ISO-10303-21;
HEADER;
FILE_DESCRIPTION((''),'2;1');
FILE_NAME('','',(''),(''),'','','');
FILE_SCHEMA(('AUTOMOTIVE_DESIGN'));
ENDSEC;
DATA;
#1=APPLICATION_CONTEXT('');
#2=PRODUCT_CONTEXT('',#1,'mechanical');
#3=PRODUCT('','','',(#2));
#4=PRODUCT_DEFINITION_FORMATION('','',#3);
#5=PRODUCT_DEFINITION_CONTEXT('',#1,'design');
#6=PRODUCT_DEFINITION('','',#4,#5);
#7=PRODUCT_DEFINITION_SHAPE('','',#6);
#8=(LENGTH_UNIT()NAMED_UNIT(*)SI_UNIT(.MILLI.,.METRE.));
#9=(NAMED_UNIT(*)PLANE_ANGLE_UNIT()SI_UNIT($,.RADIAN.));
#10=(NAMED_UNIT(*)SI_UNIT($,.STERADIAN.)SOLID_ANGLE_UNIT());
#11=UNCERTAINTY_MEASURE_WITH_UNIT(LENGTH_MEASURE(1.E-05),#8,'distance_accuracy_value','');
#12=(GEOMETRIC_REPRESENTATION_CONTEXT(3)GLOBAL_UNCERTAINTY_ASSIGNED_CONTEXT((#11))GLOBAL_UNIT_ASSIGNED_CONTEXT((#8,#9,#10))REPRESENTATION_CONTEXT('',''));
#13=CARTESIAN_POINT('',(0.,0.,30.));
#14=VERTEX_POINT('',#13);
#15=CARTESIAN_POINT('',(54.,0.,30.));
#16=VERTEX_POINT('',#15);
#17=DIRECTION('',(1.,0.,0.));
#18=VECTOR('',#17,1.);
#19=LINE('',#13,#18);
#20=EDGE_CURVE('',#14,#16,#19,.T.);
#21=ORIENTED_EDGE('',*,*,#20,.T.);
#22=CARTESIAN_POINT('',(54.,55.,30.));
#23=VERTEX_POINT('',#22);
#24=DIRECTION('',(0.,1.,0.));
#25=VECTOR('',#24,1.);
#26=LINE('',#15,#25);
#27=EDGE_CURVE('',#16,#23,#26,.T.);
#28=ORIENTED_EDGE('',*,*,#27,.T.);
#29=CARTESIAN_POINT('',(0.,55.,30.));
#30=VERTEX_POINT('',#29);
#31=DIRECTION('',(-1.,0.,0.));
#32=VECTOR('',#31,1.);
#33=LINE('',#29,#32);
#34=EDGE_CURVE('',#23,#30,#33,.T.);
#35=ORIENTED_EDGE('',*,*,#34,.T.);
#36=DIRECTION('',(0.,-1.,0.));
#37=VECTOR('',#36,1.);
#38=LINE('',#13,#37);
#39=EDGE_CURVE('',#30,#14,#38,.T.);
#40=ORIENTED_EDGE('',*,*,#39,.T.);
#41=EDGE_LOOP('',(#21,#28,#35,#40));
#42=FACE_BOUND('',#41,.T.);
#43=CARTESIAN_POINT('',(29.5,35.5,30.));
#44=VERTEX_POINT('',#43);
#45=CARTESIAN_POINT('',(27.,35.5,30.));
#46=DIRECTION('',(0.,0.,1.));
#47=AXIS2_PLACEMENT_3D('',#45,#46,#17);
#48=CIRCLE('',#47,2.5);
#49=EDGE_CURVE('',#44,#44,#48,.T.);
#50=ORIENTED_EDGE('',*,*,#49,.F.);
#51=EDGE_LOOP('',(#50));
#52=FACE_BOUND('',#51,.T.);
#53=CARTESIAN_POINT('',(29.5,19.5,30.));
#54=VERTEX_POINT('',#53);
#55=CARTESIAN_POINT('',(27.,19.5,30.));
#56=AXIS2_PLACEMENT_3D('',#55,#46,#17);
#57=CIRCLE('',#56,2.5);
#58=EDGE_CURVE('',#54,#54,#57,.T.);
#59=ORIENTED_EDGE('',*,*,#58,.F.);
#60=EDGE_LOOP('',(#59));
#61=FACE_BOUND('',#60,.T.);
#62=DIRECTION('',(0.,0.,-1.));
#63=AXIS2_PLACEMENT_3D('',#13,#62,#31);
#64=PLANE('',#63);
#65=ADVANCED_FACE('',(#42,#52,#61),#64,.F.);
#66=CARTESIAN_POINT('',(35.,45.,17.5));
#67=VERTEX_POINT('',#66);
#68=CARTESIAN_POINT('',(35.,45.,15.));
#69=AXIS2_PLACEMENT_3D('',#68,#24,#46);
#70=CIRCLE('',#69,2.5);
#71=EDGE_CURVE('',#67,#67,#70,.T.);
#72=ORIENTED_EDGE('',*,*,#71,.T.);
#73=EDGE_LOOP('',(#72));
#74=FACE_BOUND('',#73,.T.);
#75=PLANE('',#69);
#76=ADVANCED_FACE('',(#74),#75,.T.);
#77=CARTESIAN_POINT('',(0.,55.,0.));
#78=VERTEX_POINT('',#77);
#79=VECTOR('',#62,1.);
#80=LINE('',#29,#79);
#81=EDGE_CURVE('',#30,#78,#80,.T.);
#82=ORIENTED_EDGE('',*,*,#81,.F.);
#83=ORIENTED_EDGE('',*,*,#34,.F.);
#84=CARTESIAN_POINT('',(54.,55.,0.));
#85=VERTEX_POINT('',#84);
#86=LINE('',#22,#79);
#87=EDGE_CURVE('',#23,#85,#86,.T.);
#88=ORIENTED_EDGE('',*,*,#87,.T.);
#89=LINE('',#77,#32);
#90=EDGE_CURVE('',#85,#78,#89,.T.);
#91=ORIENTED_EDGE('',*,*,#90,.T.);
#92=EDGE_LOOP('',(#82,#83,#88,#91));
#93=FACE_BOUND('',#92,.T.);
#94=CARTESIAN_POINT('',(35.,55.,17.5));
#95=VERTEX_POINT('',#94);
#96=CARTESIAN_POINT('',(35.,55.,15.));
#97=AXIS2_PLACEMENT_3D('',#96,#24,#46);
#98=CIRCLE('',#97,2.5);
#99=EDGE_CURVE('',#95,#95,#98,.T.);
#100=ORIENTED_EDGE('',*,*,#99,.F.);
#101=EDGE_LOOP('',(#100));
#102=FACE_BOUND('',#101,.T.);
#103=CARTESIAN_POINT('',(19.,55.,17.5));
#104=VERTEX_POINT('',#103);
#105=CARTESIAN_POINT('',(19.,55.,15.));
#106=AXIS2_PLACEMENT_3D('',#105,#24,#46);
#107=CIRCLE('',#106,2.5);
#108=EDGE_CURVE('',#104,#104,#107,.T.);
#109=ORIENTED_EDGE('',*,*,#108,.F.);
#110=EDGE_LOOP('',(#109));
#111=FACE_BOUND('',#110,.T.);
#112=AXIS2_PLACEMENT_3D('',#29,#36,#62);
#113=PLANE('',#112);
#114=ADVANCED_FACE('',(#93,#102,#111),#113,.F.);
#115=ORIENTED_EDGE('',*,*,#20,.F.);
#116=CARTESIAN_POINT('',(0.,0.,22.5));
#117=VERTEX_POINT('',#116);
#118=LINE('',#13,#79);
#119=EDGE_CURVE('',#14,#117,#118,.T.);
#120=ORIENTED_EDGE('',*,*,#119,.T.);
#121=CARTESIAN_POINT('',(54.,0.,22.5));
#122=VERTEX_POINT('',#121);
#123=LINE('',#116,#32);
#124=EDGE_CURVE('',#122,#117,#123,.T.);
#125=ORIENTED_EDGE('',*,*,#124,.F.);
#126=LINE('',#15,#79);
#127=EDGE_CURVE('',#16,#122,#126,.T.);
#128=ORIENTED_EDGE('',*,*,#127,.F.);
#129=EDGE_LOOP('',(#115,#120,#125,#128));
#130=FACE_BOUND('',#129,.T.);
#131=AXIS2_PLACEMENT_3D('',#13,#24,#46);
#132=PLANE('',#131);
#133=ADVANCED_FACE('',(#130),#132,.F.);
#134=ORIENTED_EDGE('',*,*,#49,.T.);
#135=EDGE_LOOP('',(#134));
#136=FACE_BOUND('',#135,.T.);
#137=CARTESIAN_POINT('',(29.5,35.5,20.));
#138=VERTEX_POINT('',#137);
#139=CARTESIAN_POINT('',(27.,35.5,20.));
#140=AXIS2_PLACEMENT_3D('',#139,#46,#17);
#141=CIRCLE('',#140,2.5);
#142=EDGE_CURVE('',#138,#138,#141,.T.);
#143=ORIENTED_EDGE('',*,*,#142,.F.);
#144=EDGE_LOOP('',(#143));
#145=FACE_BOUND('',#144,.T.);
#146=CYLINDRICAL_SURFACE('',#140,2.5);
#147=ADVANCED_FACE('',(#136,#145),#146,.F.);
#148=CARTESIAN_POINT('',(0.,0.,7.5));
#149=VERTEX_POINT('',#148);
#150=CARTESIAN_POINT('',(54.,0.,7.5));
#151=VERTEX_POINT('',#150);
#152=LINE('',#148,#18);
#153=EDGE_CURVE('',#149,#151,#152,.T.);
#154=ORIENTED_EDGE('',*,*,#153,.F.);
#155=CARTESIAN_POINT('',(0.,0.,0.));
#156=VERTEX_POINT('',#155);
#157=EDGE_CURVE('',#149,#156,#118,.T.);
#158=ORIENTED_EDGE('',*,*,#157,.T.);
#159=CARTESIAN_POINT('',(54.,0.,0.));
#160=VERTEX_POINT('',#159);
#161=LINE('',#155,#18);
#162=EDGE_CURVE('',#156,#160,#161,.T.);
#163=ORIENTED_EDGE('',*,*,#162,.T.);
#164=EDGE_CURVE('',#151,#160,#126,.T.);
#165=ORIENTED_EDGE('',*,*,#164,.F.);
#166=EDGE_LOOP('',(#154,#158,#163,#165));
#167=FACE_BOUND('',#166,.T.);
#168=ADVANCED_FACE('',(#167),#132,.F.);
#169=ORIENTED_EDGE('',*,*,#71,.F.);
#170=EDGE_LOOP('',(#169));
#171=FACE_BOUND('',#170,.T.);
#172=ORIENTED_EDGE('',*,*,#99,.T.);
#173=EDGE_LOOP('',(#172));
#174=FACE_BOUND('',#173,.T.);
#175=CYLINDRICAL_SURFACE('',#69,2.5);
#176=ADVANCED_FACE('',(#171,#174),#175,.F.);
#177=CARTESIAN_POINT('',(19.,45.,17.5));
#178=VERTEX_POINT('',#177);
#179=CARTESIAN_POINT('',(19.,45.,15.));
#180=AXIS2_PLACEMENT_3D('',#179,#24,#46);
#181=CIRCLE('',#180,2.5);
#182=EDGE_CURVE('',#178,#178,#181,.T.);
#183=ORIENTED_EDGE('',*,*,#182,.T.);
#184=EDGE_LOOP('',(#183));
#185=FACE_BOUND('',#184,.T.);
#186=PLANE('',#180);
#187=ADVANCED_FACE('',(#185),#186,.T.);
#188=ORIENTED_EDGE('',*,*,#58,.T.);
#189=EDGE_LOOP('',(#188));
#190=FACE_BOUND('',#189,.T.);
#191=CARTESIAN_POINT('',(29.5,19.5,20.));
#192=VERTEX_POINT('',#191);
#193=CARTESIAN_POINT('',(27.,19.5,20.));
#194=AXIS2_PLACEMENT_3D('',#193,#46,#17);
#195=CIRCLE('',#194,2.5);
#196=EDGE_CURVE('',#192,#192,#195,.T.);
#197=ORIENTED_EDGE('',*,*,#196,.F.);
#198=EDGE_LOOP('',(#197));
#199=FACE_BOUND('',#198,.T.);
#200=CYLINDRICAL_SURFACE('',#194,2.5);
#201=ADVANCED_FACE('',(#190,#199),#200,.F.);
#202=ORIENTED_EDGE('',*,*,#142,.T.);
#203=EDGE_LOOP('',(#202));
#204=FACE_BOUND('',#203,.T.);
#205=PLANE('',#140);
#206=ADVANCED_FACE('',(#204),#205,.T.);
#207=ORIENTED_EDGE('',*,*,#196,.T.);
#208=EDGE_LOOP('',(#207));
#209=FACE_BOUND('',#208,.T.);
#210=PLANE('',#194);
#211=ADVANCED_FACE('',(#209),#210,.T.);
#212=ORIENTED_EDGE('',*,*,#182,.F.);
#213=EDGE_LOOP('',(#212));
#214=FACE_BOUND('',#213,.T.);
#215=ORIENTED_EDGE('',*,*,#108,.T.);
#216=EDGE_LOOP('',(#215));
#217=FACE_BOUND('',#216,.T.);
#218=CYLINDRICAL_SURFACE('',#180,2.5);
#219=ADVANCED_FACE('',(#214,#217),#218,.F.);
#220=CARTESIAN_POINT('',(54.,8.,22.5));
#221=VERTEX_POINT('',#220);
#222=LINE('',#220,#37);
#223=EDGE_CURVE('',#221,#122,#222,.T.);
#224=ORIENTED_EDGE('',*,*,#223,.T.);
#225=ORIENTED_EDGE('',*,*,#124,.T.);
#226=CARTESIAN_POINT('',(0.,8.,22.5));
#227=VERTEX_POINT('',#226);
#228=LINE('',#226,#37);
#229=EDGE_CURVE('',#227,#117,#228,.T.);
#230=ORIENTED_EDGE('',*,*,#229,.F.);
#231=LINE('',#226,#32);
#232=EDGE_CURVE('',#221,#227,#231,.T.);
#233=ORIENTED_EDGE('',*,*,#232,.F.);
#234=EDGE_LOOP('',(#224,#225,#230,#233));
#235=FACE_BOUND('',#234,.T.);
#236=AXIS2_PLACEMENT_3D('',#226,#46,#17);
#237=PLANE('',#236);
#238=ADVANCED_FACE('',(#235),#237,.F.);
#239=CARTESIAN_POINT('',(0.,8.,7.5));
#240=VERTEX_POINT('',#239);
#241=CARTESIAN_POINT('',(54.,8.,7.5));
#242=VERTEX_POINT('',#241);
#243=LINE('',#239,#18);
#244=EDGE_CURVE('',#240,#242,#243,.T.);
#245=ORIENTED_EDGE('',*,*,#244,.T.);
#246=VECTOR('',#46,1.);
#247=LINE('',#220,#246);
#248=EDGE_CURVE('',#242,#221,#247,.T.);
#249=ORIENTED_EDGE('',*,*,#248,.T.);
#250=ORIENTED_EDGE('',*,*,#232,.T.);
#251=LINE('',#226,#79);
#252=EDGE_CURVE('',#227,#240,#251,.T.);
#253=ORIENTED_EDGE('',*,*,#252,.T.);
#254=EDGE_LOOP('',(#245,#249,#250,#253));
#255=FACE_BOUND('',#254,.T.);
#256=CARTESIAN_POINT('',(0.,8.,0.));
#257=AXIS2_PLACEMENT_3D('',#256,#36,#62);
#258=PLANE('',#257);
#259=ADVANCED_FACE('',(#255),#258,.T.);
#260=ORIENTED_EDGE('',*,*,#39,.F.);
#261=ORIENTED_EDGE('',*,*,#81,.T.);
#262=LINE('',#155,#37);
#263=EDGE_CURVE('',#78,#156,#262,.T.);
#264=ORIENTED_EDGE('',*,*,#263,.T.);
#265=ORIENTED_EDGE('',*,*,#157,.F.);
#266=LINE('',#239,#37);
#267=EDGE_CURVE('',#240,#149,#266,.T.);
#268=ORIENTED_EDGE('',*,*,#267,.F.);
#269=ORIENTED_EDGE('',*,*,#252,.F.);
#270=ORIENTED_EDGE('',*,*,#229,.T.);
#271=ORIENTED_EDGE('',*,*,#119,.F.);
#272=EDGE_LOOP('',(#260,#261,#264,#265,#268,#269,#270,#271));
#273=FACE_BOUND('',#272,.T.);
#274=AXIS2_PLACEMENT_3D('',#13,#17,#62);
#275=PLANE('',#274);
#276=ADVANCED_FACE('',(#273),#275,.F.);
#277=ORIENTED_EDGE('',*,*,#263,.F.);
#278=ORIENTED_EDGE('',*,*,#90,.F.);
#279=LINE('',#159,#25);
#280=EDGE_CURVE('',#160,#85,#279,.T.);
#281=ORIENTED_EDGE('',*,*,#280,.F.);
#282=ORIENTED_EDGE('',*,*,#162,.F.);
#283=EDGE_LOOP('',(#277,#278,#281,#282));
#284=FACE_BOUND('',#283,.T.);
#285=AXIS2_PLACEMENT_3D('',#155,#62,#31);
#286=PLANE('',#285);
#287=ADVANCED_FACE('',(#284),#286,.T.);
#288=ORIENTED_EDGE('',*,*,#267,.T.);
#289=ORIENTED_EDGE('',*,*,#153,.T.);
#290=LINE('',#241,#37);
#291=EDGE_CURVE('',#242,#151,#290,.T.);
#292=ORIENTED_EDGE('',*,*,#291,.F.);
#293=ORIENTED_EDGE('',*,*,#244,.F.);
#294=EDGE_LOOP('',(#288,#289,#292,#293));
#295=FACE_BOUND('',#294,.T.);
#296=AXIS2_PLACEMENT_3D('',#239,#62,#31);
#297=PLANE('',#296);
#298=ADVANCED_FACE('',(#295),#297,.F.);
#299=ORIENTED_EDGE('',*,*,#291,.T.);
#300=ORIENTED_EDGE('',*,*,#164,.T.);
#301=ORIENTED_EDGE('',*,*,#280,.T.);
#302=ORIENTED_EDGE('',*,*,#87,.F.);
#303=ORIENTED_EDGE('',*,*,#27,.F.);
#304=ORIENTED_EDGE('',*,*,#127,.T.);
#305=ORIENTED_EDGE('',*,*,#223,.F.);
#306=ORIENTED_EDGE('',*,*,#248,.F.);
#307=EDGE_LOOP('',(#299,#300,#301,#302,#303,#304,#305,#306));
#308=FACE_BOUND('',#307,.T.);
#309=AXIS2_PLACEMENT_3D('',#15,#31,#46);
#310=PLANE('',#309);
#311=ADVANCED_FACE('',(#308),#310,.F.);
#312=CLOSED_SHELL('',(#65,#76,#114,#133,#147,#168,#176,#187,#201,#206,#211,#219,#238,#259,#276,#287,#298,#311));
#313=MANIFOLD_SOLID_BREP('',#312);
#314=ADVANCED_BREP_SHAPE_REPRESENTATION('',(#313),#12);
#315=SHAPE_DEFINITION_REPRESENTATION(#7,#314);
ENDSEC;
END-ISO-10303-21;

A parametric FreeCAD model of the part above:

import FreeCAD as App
import Part
import Sketcher
Q = App.Units.Quantity

doc = App.newDocument("Part")
body = doc.addObject("PartDesign::Body", "Body")

# Sketch on XY plane
sketch1 = body.newObject("Sketcher::SketchObject", "Sketch")
sketch1.AttachmentSupport = (doc.getObject("XY_Plane"), [""])
sketch1.MapMode = "FlatFace"
sketch1.addGeometry([
    Part.LineSegment(App.Vector(0, 55, 0), App.Vector(0, 0, 0)),
    Part.LineSegment(App.Vector(0, 0, 0), App.Vector(54, 0, 0)),
    Part.LineSegment(App.Vector(54, 0, 0), App.Vector(54, 55, 0)),
    Part.LineSegment(App.Vector(54, 55, 0), App.Vector(0, 55, 0)),
], False)
sketch1.addConstraint([
    Sketcher.Constraint("Coincident", 0, 2, 1, 1),
    Sketcher.Constraint("Coincident", 1, 2, 2, 1),
    Sketcher.Constraint("Coincident", 2, 2, 3, 1),
    Sketcher.Constraint("Coincident", 3, 2, 0, 1),
    Sketcher.Constraint("Vertical", 0),
    Sketcher.Constraint("Horizontal", 1),
    Sketcher.Constraint("Vertical", 2),
    Sketcher.Constraint("Horizontal", 3),
    Sketcher.Constraint("Coincident", 0, 2, -1, 1),
    Sketcher.Constraint("DistanceX", 1, 1, 1, 2, Q("54 mm")),
    Sketcher.Constraint("DistanceY", 0, 2, 0, 1, Q("55 mm")),
])
pad1 = body.newObject("PartDesign::Pad", "Pad")
pad1.Profile = sketch1
pad1.Length = 30

# Sketch on XZ plane
sketch2 = body.newObject("Sketcher::SketchObject", "Sketch001")
sketch2.AttachmentSupport = (doc.getObject("XZ_Plane"), [""])
sketch2.MapMode = "FlatFace"
sketch2.addGeometry([
    Part.LineSegment(App.Vector(0, 22.5, 0), App.Vector(0, 7.5, 0)),
    Part.LineSegment(App.Vector(0, 7.5, 0), App.Vector(54, 7.5, 0)),
    Part.LineSegment(App.Vector(54, 7.5, 0), App.Vector(54, 22.5, 0)),
    Part.LineSegment(App.Vector(54, 22.5, 0), App.Vector(0, 22.5, 0)),
], False)
sketch2.addConstraint([
    Sketcher.Constraint("Coincident", 0, 2, 1, 1),
    Sketcher.Constraint("Coincident", 1, 2, 2, 1),
    Sketcher.Constraint("Coincident", 2, 2, 3, 1),
    Sketcher.Constraint("Coincident", 3, 2, 0, 1),
    Sketcher.Constraint("Vertical", 0),
    Sketcher.Constraint("Horizontal", 1),
    Sketcher.Constraint("Vertical", 2),
    Sketcher.Constraint("Horizontal", 3),
    Sketcher.Constraint("PointOnObject", 0, 2, -2),
    Sketcher.Constraint("DistanceX", 1, 1, 1, 2, Q("54 mm")),
    Sketcher.Constraint("DistanceY", 0, 2, 0, 1, Q("15 mm")),
    Sketcher.Constraint("DistanceY", -1, 1, 0, 2, Q("7.5 mm")),
])
pocket1 = body.newObject("PartDesign::Pocket", "Pocket")
pocket1.Profile = sketch2
pocket1.Length = 8

# Sketch on XZ plane
sketch3 = body.newObject("Sketcher::SketchObject", "Sketch002")
sketch3.AttachmentSupport = (doc.getObject("XZ_Plane"), [""])
sketch3.MapMode = "FlatFace"
sketch3.AttachmentOffset = App.Placement(App.Vector(0, 0, -55), App.Rotation())
sketch3.addGeometry([
    Part.Circle(App.Vector(19, 15, 0), App.Vector(0, 0, 1), 2.5),
    Part.Circle(App.Vector(35, 15, 0), App.Vector(0, 0, 1), 2.5),
], False)
sketch3.addConstraint([
    Sketcher.Constraint("Equal", 0, 1),
    Sketcher.Constraint("Horizontal", 0, 3, 1, 3),
    Sketcher.Constraint("Diameter", 0, Q("5 mm")),
    Sketcher.Constraint("DistanceX", -1, 1, 0, 3, Q("19 mm")),
    Sketcher.Constraint("DistanceY", -1, 1, 0, 3, Q("15 mm")),
    Sketcher.Constraint("DistanceX", -1, 1, 1, 3, Q("35 mm")),
])
pocket2 = body.newObject("PartDesign::Pocket", "Pocket001")
pocket2.Profile = sketch3
pocket2.Length = 10
pocket2.Reversed = True

# Sketch on XY plane
sketch4 = body.newObject("Sketcher::SketchObject", "Sketch003")
sketch4.AttachmentSupport = (doc.getObject("XY_Plane"), [""])
sketch4.MapMode = "FlatFace"
sketch4.AttachmentOffset = App.Placement(App.Vector(0, 0, 30), App.Rotation())
sketch4.addGeometry([
    Part.Circle(App.Vector(27, 35.5, 0), App.Vector(0, 0, 1), 2.5),
    Part.Circle(App.Vector(27, 19.5, 0), App.Vector(0, 0, 1), 2.5),
], False)
sketch4.addConstraint([
    Sketcher.Constraint("Equal", 0, 1),
    Sketcher.Constraint("Vertical", 0, 3, 1, 3),
    Sketcher.Constraint("Diameter", 0, Q("5 mm")),
    Sketcher.Constraint("DistanceX", -1, 1, 0, 3, Q("27 mm")),
    Sketcher.Constraint("DistanceY", 1, 3, 0, 3, Q("16 mm")),
    Sketcher.Constraint("DistanceY", -1, 1, 0, 3, Q("35.5 mm")),
])
pocket3 = body.newObject("PartDesign::Pocket", "Pocket002")
pocket3.Profile = sketch4
pocket3.Length = 10

doc.recompute()
